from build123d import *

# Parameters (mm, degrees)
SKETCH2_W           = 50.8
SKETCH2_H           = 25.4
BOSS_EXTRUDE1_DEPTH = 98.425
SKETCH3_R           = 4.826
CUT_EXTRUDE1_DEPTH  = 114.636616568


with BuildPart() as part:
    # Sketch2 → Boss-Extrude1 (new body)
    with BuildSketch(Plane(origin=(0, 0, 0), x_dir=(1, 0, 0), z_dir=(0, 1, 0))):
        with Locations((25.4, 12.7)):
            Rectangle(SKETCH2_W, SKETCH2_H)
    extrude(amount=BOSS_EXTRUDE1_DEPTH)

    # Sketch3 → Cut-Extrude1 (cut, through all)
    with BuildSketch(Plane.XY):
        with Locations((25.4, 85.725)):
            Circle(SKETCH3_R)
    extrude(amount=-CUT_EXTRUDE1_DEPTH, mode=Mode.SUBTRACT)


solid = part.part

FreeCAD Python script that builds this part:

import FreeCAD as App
import Part
import Sketcher

V = App.Vector
Q = App.Units.Quantity

doc = App.newDocument("Part")
body = doc.addObject("PartDesign::Body", "Body")

# Sketch on XZ plane
sketch1 = doc.addObject("Sketcher::SketchObject", "Sketch")
body.addObject(sketch1)
sketch1.AttachmentSupport = (doc.XZ_Plane, [""])
sketch1.MapMode = "FlatFace"
sketch1.addGeometry([
    Part.LineSegment(V(0, -25, 0), V(0, 0, 0)),
    Part.LineSegment(V(0, 0, 0), V(51, 0, 0)),
    Part.LineSegment(V(51, 0, 0), V(51, -25, 0)),
    Part.LineSegment(V(51, -25, 0), V(0, -25, 0)),
], False)
sketch1.addConstraint([
    Sketcher.Constraint("Coincident", 0, 2, 1, 1),
    Sketcher.Constraint("Coincident", 1, 2, 2, 1),
    Sketcher.Constraint("Coincident", 2, 2, 3, 1),
    Sketcher.Constraint("Coincident", 3, 2, 0, 1),
    Sketcher.Constraint("Vertical", 0),
    Sketcher.Constraint("Horizontal", 1),
    Sketcher.Constraint("Vertical", 2),
    Sketcher.Constraint("Horizontal", 3),
    Sketcher.Constraint("Coincident", 0, 2, -1, 1),
    Sketcher.Constraint("DistanceX", 1, 1, 1, 2, Q("2 in")),
    Sketcher.Constraint("DistanceY", 0, 1, 0, 2, Q("1 in")),
])
pad1 = doc.addObject("PartDesign::Pad", "Pad")
body.addObject(pad1)
pad1.Profile = sketch1
pad1.Length = Q("3.875 in")
pad1.Reversed = True

# Sketch on XY plane
sketch2 = doc.addObject("Sketcher::SketchObject", "Sketch001")
body.addObject(sketch2)
sketch2.AttachmentSupport = (doc.XY_Plane, [""])
sketch2.MapMode = "FlatFace"
sketch2.addGeometry(Part.Circle(V(25.4, 85.7, 0), V(0, 0, 1), 4.8), False)
sketch2.addConstraint([
    Sketcher.Constraint("Diameter", 0, Q("0.38 in")),
    Sketcher.Constraint("DistanceX", -1, 1, 0, 3, Q("1 in")),
    Sketcher.Constraint("DistanceY", -1, 1, 0, 3, Q("3.375 in")),
])
pocket1 = doc.addObject("PartDesign::Pocket", "Pocket")
body.addObject(pocket1)
pocket1.Profile = sketch2
pocket1.Type = "ThroughAll"

doc.recompute()
